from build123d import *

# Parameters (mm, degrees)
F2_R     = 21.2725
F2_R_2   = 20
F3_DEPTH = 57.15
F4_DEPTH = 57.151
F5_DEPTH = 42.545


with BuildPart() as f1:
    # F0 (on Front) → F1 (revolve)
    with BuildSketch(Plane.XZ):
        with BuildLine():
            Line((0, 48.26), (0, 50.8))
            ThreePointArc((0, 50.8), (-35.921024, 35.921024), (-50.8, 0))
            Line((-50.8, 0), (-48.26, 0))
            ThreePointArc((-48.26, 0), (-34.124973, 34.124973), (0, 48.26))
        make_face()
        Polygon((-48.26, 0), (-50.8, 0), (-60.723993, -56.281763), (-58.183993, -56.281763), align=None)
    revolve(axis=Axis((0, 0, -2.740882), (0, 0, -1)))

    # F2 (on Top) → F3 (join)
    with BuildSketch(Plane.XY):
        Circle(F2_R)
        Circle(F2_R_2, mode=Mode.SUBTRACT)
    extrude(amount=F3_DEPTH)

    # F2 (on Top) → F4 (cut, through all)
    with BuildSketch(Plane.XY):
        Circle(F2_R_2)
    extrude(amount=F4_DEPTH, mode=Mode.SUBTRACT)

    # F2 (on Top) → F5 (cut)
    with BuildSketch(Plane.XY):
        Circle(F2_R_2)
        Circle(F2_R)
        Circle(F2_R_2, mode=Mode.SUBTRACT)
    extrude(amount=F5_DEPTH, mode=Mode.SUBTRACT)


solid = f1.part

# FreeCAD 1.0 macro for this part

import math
import FreeCAD as App
import Part
import Sketcher
Q = App.Units.Quantity

doc = App.newDocument("Part")
params = doc.addObject("Spreadsheet::Sheet", "Params")
for row, (alias, value) in enumerate([
    ("sketch1_radius", "2.0000001 in"),
    ("sketch1_radius2", "1.9 in"),
    ("sketch1_length", "2.25 in"),
    ("revolution_angle", "360 deg"),
    ("sketch2_diameter", "1.675 in"),
    ("pad1_length", "2.25 in"),
    ("sketch4_diameter", "1.675 in"),
    ("pocket2_length", "1.675 in"),
], start=1):
    params.set(f"A{row}", alias)
    params.set(f"B{row}", "=" + value)
    params.setAlias(f"B{row}", alias)

body = doc.addObject("PartDesign::Body", "Body")

sketch1 = body.newObject("Sketcher::SketchObject", "Sketch")
sketch1.AttachmentSupport = (doc.getObject("XZ_Plane"), [""])
sketch1.MapMode = "FlatFace"
sketch1.addGeometry([
    Part.LineSegment(App.Vector(0, 48.3, 0), App.Vector(0, 50.8, 0)),
    Part.ArcOfCircle(Part.Circle(App.Vector(0, 0, 0), App.Vector(0, 0, 1), 50.8), math.radians(90), math.radians(180)),
    Part.LineSegment(App.Vector(-50.8, 0, 0), App.Vector(-60.7, -56.3, 0)),
    Part.LineSegment(App.Vector(-60.7, -56.3, 0), App.Vector(-58.2, -56.3, 0)),
    Part.LineSegment(App.Vector(-58.2, -56.3, 0), App.Vector(-48.3, 0, 0)),
    Part.ArcOfCircle(Part.Circle(App.Vector(0, 0, 0), App.Vector(0, 0, 1), 48.3), math.radians(90), math.radians(180)),
], False)
sketch1.addConstraint([
    Sketcher.Constraint("Coincident", 0, 2, 1, 1),
    Sketcher.Constraint("Coincident", 1, 2, 2, 1),
    Sketcher.Constraint("Coincident", 2, 2, 3, 1),
    Sketcher.Constraint("Coincident", 3, 2, 4, 1),
    Sketcher.Constraint("Coincident", 4, 2, 5, 2),
    Sketcher.Constraint("Coincident", 5, 1, 0, 1),
    Sketcher.Constraint("Vertical", 0),
    Sketcher.Constraint("Horizontal", 3),
    Sketcher.Constraint("Coincident", 1, 3, -1, 1),
    Sketcher.Constraint("Coincident", 5, 3, -1, 1),
    Sketcher.Constraint("PointOnObject", 0, 2, -2),
    Sketcher.Constraint("PointOnObject", 1, 2, -1),
    Sketcher.Constraint("PointOnObject", 4, 2, -1),
    Sketcher.Constraint("Parallel", 2, 4),
    Sketcher.Constraint("Radius", 1, Q("2.0000001 in")),
    Sketcher.Constraint("Radius", 5, Q("1.9 in")),
    Sketcher.Constraint("Angle", 2, Q("-100 deg")),
    Sketcher.Constraint("Distance", 2, Q("2.25 in")),
])
sketch1.setExpression("Constraints[14]", "Params.sketch1_radius")
sketch1.setExpression("Constraints[15]", "Params.sketch1_radius2")
sketch1.setExpression("Constraints[17]", "Params.sketch1_length")
revolution = body.newObject("PartDesign::Revolution", "Revolution")
revolution.Profile = sketch1
revolution.ReferenceAxis = (sketch1, ["V_Axis"])
revolution.setExpression("Angle", "Params.revolution_angle")

sketch2 = body.newObject("Sketcher::SketchObject", "Sketch001")
sketch2.AttachmentSupport = (doc.getObject("XY_Plane"), [""])
sketch2.MapMode = "FlatFace"
sketch2.addGeometry([
    Part.Circle(App.Vector(0, 0, 0), App.Vector(0, 0, 1), 21),
    Part.Circle(App.Vector(0, 0, 0), App.Vector(0, 0, 1), 20),
], False)
sketch2.addConstraint([
    Sketcher.Constraint("Coincident", 0, 3, -1, 1),
    Sketcher.Constraint("Coincident", 1, 3, -1, 1),
    Sketcher.Constraint("Diameter", 0, Q("1.675 in")),
    Sketcher.Constraint("Diameter", 1, Q("40 mm")),
])
sketch2.setExpression("Constraints[2]", "Params.sketch2_diameter")
pad1 = body.newObject("PartDesign::Pad", "Pad")
pad1.Profile = sketch2
pad1.setExpression("Length", "Params.pad1_length")

sketch3 = body.newObject("Sketcher::SketchObject", "Sketch002")
sketch3.AttachmentSupport = (doc.getObject("XY_Plane"), [""])
sketch3.MapMode = "FlatFace"
sketch3.addGeometry(Part.Circle(App.Vector(0, 0, 0), App.Vector(0, 0, 1), 20), False)
sketch3.addConstraint([
    Sketcher.Constraint("Coincident", 0, 3, -1, 1),
    Sketcher.Constraint("Diameter", 0, Q("40 mm")),
])
pocket1 = body.newObject("PartDesign::Pocket", "Pocket")
pocket1.Profile = sketch3
pocket1.Type = "ThroughAll"
pocket1.Reversed = True

sketch4 = body.newObject("Sketcher::SketchObject", "Sketch003")
sketch4.AttachmentSupport = (doc.getObject("XY_Plane"), [""])
sketch4.MapMode = "FlatFace"
sketch4.addGeometry([
    Part.Circle(App.Vector(0, 0, 0), App.Vector(0, 0, 1), 21),
    Part.Circle(App.Vector(0, 0, 0), App.Vector(0, 0, 1), 20),
], False)
sketch4.addConstraint([
    Sketcher.Constraint("Coincident", 0, 3, -1, 1),
    Sketcher.Constraint("Coincident", 1, 3, -1, 1),
    Sketcher.Constraint("Diameter", 0, Q("1.675 in")),
    Sketcher.Constraint("Diameter", 1, Q("40 mm")),
])
sketch4.setExpression("Constraints[2]", "Params.sketch4_diameter")
pocket2 = body.newObject("PartDesign::Pocket", "Pocket001")
pocket2.Profile = sketch4
pocket2.setExpression("Length", "Params.pocket2_length")
pocket2.Reversed = True

doc.recompute()
